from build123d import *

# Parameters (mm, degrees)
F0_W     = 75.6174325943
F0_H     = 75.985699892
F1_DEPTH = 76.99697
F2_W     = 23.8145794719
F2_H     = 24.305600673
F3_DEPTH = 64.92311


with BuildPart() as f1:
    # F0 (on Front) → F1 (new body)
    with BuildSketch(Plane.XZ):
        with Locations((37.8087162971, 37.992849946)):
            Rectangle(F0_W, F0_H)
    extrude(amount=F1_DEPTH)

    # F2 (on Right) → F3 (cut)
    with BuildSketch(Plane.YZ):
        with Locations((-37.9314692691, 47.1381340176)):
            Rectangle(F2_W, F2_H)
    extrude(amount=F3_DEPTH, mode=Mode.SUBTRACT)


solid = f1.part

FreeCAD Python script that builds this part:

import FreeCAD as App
import Part
import Sketcher

V = App.Vector

doc = App.newDocument("Part")
body = doc.addObject("PartDesign::Body", "Body")

sketch1 = body.newObject("Sketcher::SketchObject", "Sketch")
sketch1.AttachmentSupport = (doc.getObject("XZ_Plane"), [""])
sketch1.MapMode = "FlatFace"
sketch1.addGeometry(Part.LineSegment(V(0, 76, 0), V(0, 0, 0)), False)
sketch1.addGeometry(Part.LineSegment(V(0, 0, 0), V(76, 0, 0)), False)
sketch1.addGeometry(Part.LineSegment(V(76, 0, 0), V(76, 76, 0)), False)
sketch1.addGeometry(Part.LineSegment(V(76, 76, 0), V(0, 76, 0)), False)
sketch1.addConstraint(Sketcher.Constraint("Coincident", 0, 2, 1, 1))
sketch1.addConstraint(Sketcher.Constraint("Coincident", 1, 2, 2, 1))
sketch1.addConstraint(Sketcher.Constraint("Coincident", 2, 2, 3, 1))
sketch1.addConstraint(Sketcher.Constraint("Coincident", 3, 2, 0, 1))
sketch1.addConstraint(Sketcher.Constraint("Vertical", 0))
sketch1.addConstraint(Sketcher.Constraint("Horizontal", 1))
sketch1.addConstraint(Sketcher.Constraint("Vertical", 2))
sketch1.addConstraint(Sketcher.Constraint("Horizontal", 3))
sketch1.addConstraint(Sketcher.Constraint("Coincident", 0, 2, -1, 1))
sketch1.addConstraint(Sketcher.Constraint("DistanceY", 0, 2, 0, 1, 75.9857))
sketch1.addConstraint(Sketcher.Constraint("DistanceX", 1, 1, 1, 2, 75.617433))
pad1 = body.newObject("PartDesign::Pad", "Pad")
pad1.Profile = sketch1
pad1.Length = 76.99697

sketch2 = body.newObject("Sketcher::SketchObject", "Sketch001")
sketch2.AttachmentSupport = (doc.getObject("YZ_Plane"), [""])
sketch2.MapMode = "FlatFace"
sketch2.addGeometry(Part.LineSegment(V(-50, 59, 0), V(-50, 35, 0)), False)
sketch2.addGeometry(Part.LineSegment(V(-50, 35, 0), V(-26, 35, 0)), False)
sketch2.addGeometry(Part.LineSegment(V(-26, 35, 0), V(-26, 59, 0)), False)
sketch2.addGeometry(Part.LineSegment(V(-26, 59, 0), V(-50, 59, 0)), False)
sketch2.addConstraint(Sketcher.Constraint("Coincident", 0, 2, 1, 1))
sketch2.addConstraint(Sketcher.Constraint("Coincident", 1, 2, 2, 1))
sketch2.addConstraint(Sketcher.Constraint("Coincident", 2, 2, 3, 1))
sketch2.addConstraint(Sketcher.Constraint("Coincident", 3, 2, 0, 1))
sketch2.addConstraint(Sketcher.Constraint("Vertical", 0))
sketch2.addConstraint(Sketcher.Constraint("Horizontal", 1))
sketch2.addConstraint(Sketcher.Constraint("Vertical", 2))
sketch2.addConstraint(Sketcher.Constraint("Horizontal", 3))
sketch2.addConstraint(Sketcher.Constraint("DistanceY", 0, 2, 0, 1, 24.305601))
sketch2.addConstraint(Sketcher.Constraint("DistanceX", 1, 1, 1, 2, 23.814579))
sketch2.addConstraint(Sketcher.Constraint("DistanceX", 0, 2, -1, 1, 49.838759))
sketch2.addConstraint(Sketcher.Constraint("DistanceY", -1, 1, 0, 2, 34.985334))
pocket1 = body.newObject("PartDesign::Pocket", "Pocket")
pocket1.Profile = sketch2
pocket1.Length = 64.92311
pocket1.Reversed = True

doc.recompute()
